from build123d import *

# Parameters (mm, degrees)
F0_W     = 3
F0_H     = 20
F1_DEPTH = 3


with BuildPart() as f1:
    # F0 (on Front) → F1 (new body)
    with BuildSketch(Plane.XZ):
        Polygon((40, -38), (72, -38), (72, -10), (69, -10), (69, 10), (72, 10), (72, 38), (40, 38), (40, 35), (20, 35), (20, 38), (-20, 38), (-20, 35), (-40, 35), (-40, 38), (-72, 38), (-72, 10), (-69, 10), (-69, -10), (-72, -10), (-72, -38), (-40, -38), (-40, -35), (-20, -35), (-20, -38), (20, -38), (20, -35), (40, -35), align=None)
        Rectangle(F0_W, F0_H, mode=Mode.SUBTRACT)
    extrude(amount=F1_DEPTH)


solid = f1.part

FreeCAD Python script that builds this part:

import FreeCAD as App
import Part
import Sketcher

V = App.Vector
Q = App.Units.Quantity

doc = App.newDocument("Part")
body = doc.addObject("PartDesign::Body", "Body")

sketch1 = doc.addObject("Sketcher::SketchObject", "Sketch")
body.addObject(sketch1)
sketch1.AttachmentSupport = (doc.XZ_Plane, [""])
sketch1.MapMode = "FlatFace"
sketch1.addGeometry(Part.LineSegment(V(40, -38, 0), V(72, -38, 0)), False)
sketch1.addGeometry(Part.LineSegment(V(72, -38, 0), V(72, -10, 0)), False)
sketch1.addGeometry(Part.LineSegment(V(72, -10, 0), V(69, -10, 0)), False)
sketch1.addGeometry(Part.LineSegment(V(69, -10, 0), V(69, 10, 0)), False)
sketch1.addGeometry(Part.LineSegment(V(69, 10, 0), V(72, 10, 0)), False)
sketch1.addGeometry(Part.LineSegment(V(72, 10, 0), V(72, 38, 0)), False)
sketch1.addGeometry(Part.LineSegment(V(72, 38, 0), V(40, 38, 0)), False)
sketch1.addGeometry(Part.LineSegment(V(40, 38, 0), V(40, 35, 0)), False)
sketch1.addGeometry(Part.LineSegment(V(40, 35, 0), V(20, 35, 0)), False)
sketch1.addGeometry(Part.LineSegment(V(20, 35, 0), V(20, 38, 0)), False)
sketch1.addGeometry(Part.LineSegment(V(20, 38, 0), V(-20, 38, 0)), False)
sketch1.addGeometry(Part.LineSegment(V(-20, 38, 0), V(-20, 35, 0)), False)
sketch1.addGeometry(Part.LineSegment(V(-20, 35, 0), V(-40, 35, 0)), False)
sketch1.addGeometry(Part.LineSegment(V(-40, 35, 0), V(-40, 38, 0)), False)
sketch1.addGeometry(Part.LineSegment(V(-40, 38, 0), V(-72, 38, 0)), False)
sketch1.addGeometry(Part.LineSegment(V(-72, 38, 0), V(-72, 10, 0)), False)
sketch1.addGeometry(Part.LineSegment(V(-72, 10, 0), V(-69, 10, 0)), False)
sketch1.addGeometry(Part.LineSegment(V(-69, 10, 0), V(-69, -10, 0)), False)
sketch1.addGeometry(Part.LineSegment(V(-69, -10, 0), V(-72, -10, 0)), False)
sketch1.addGeometry(Part.LineSegment(V(-72, -10, 0), V(-72, -38, 0)), False)
sketch1.addGeometry(Part.LineSegment(V(-72, -38, 0), V(-40, -38, 0)), False)
sketch1.addGeometry(Part.LineSegment(V(-40, -38, 0), V(-40, -35, 0)), False)
sketch1.addGeometry(Part.LineSegment(V(-40, -35, 0), V(-20, -35, 0)), False)
sketch1.addGeometry(Part.LineSegment(V(-20, -35, 0), V(-20, -38, 0)), False)
sketch1.addGeometry(Part.LineSegment(V(-20, -38, 0), V(20, -38, 0)), False)
sketch1.addGeometry(Part.LineSegment(V(20, -38, 0), V(20, -35, 0)), False)
sketch1.addGeometry(Part.LineSegment(V(20, -35, 0), V(40, -35, 0)), False)
sketch1.addGeometry(Part.LineSegment(V(40, -35, 0), V(40, -38, 0)), False)
sketch1.addGeometry(Part.LineSegment(V(1.5, -10, 0), V(-1.5, -10, 0)), False)
sketch1.addGeometry(Part.LineSegment(V(-1.5, -10, 0), V(-1.5, 10, 0)), False)
sketch1.addGeometry(Part.LineSegment(V(-1.5, 10, 0), V(1.5, 10, 0)), False)
sketch1.addGeometry(Part.LineSegment(V(1.5, 10, 0), V(1.5, -10, 0)), False)
sketch1.addConstraint(Sketcher.Constraint("Coincident", 0, 2, 1, 1))
sketch1.addConstraint(Sketcher.Constraint("Coincident", 1, 2, 2, 1))
sketch1.addConstraint(Sketcher.Constraint("Coincident", 2, 2, 3, 1))
sketch1.addConstraint(Sketcher.Constraint("Coincident", 3, 2, 4, 1))
sketch1.addConstraint(Sketcher.Constraint("Coincident", 4, 2, 5, 1))
sketch1.addConstraint(Sketcher.Constraint("Coincident", 5, 2, 6, 1))
sketch1.addConstraint(Sketcher.Constraint("Coincident", 6, 2, 7, 1))
sketch1.addConstraint(Sketcher.Constraint("Coincident", 7, 2, 8, 1))
sketch1.addConstraint(Sketcher.Constraint("Coincident", 8, 2, 9, 1))
sketch1.addConstraint(Sketcher.Constraint("Coincident", 9, 2, 10, 1))
sketch1.addConstraint(Sketcher.Constraint("Coincident", 10, 2, 11, 1))
sketch1.addConstraint(Sketcher.Constraint("Coincident", 11, 2, 12, 1))
sketch1.addConstraint(Sketcher.Constraint("Coincident", 12, 2, 13, 1))
sketch1.addConstraint(Sketcher.Constraint("Coincident", 13, 2, 14, 1))
sketch1.addConstraint(Sketcher.Constraint("Coincident", 14, 2, 15, 1))
sketch1.addConstraint(Sketcher.Constraint("Coincident", 15, 2, 16, 1))
sketch1.addConstraint(Sketcher.Constraint("Coincident", 16, 2, 17, 1))
sketch1.addConstraint(Sketcher.Constraint("Coincident", 17, 2, 18, 1))
sketch1.addConstraint(Sketcher.Constraint("Coincident", 18, 2, 19, 1))
sketch1.addConstraint(Sketcher.Constraint("Coincident", 19, 2, 20, 1))
sketch1.addConstraint(Sketcher.Constraint("Coincident", 20, 2, 21, 1))
sketch1.addConstraint(Sketcher.Constraint("Coincident", 21, 2, 22, 1))
sketch1.addConstraint(Sketcher.Constraint("Coincident", 22, 2, 23, 1))
sketch1.addConstraint(Sketcher.Constraint("Coincident", 23, 2, 24, 1))
sketch1.addConstraint(Sketcher.Constraint("Coincident", 24, 2, 25, 1))
sketch1.addConstraint(Sketcher.Constraint("Coincident", 25, 2, 26, 1))
sketch1.addConstraint(Sketcher.Constraint("Coincident", 26, 2, 27, 1))
sketch1.addConstraint(Sketcher.Constraint("Coincident", 27, 2, 0, 1))
sketch1.addConstraint(Sketcher.Constraint("Coincident", 28, 2, 29, 1))
sketch1.addConstraint(Sketcher.Constraint("Coincident", 29, 2, 30, 1))
sketch1.addConstraint(Sketcher.Constraint("Coincident", 30, 2, 31, 1))
sketch1.addConstraint(Sketcher.Constraint("Coincident", 31, 2, 28, 1))
sketch1.addConstraint(Sketcher.Constraint("Horizontal", 0))
sketch1.addConstraint(Sketcher.Constraint("Vertical", 1))
sketch1.addConstraint(Sketcher.Constraint("Horizontal", 2))
sketch1.addConstraint(Sketcher.Constraint("Vertical", 3))
sketch1.addConstraint(Sketcher.Constraint("Horizontal", 4))
sketch1.addConstraint(Sketcher.Constraint("Vertical", 5))
sketch1.addConstraint(Sketcher.Constraint("Horizontal", 6))
sketch1.addConstraint(Sketcher.Constraint("Vertical", 7))
sketch1.addConstraint(Sketcher.Constraint("Horizontal", 8))
sketch1.addConstraint(Sketcher.Constraint("Vertical", 9))
sketch1.addConstraint(Sketcher.Constraint("Horizontal", 10))
sketch1.addConstraint(Sketcher.Constraint("Vertical", 11))
sketch1.addConstraint(Sketcher.Constraint("Horizontal", 12))
sketch1.addConstraint(Sketcher.Constraint("Vertical", 13))
sketch1.addConstraint(Sketcher.Constraint("Horizontal", 14))
sketch1.addConstraint(Sketcher.Constraint("Vertical", 15))
sketch1.addConstraint(Sketcher.Constraint("Horizontal", 16))
sketch1.addConstraint(Sketcher.Constraint("Vertical", 17))
sketch1.addConstraint(Sketcher.Constraint("Horizontal", 18))
sketch1.addConstraint(Sketcher.Constraint("Vertical", 19))
sketch1.addConstraint(Sketcher.Constraint("Horizontal", 20))
sketch1.addConstraint(Sketcher.Constraint("Vertical", 21))
sketch1.addConstraint(Sketcher.Constraint("Horizontal", 22))
sketch1.addConstraint(Sketcher.Constraint("Vertical", 23))
sketch1.addConstraint(Sketcher.Constraint("Horizontal", 24))
sketch1.addConstraint(Sketcher.Constraint("Vertical", 25))
sketch1.addConstraint(Sketcher.Constraint("Horizontal", 26))
sketch1.addConstraint(Sketcher.Constraint("Vertical", 27))
sketch1.addConstraint(Sketcher.Constraint("Horizontal", 28))
sketch1.addConstraint(Sketcher.Constraint("Vertical", 29))
sketch1.addConstraint(Sketcher.Constraint("Horizontal", 30))
sketch1.addConstraint(Sketcher.Constraint("Vertical", 31))
sketch1.addConstraint(Sketcher.Constraint("Symmetric", 0, 2, 14, 2, -1, 1))
sketch1.addConstraint(Sketcher.Constraint("Symmetric", 2, 2, 16, 2, -1, 1))
sketch1.addConstraint(Sketcher.Constraint("Symmetric", 4, 2, 18, 2, -1, 1))
sketch1.addConstraint(Sketcher.Constraint("Symmetric", 6, 2, 20, 2, -1, 1))
sketch1.addConstraint(Sketcher.Constraint("Symmetric", 8, 2, 22, 2, -1, 1))
sketch1.addConstraint(Sketcher.Constraint("Symmetric", 10, 2, 24, 2, -1, 1))
sketch1.addConstraint(Sketcher.Constraint("Symmetric", 12, 2, 26, 2, -1, 1))
sketch1.addConstraint(Sketcher.Constraint("Symmetric", 28, 2, 30, 2, -1, 1))
sketch1.addConstraint(Sketcher.Constraint("Symmetric", 8, 2, 11, 2, -2))
sketch1.addConstraint(Sketcher.Constraint("Symmetric", 6, 2, 13, 2, -2))
sketch1.addConstraint(Sketcher.Constraint("Symmetric", 4, 2, 15, 2, -2))
sketch1.addConstraint(Sketcher.Constraint("Horizontal", 6, 2, 9, 2))
sketch1.addConstraint(Sketcher.Constraint("Horizontal", 18, 2, 28, 2))
sketch1.addConstraint(Sketcher.Constraint("Equal", 18, 28))
sketch1.addConstraint(Sketcher.Constraint("Equal", 26, 3))
sketch1.addConstraint(Sketcher.Constraint("Equal", 30, 7))
sketch1.addConstraint(Sketcher.Constraint("DistanceX", 0, 1, 0, 2, Q("32 mm")))
sketch1.addConstraint(Sketcher.Constraint("DistanceX", 2, 2, 2, 1, Q("3 mm")))
sketch1.addConstraint(Sketcher.Constraint("DistanceX", 8, 2, 8, 1, Q("20 mm")))
sketch1.addConstraint(Sketcher.Constraint("DistanceX", 10, 2, 10, 1, Q("40 mm")))
sketch1.addConstraint(Sketcher.Constraint("DistanceY", 1, 1, 1, 2, Q("28 mm")))
pad1 = doc.addObject("PartDesign::Pad", "Pad")
body.addObject(pad1)
pad1.Profile = sketch1
pad1.Length = 3

doc.recompute()
